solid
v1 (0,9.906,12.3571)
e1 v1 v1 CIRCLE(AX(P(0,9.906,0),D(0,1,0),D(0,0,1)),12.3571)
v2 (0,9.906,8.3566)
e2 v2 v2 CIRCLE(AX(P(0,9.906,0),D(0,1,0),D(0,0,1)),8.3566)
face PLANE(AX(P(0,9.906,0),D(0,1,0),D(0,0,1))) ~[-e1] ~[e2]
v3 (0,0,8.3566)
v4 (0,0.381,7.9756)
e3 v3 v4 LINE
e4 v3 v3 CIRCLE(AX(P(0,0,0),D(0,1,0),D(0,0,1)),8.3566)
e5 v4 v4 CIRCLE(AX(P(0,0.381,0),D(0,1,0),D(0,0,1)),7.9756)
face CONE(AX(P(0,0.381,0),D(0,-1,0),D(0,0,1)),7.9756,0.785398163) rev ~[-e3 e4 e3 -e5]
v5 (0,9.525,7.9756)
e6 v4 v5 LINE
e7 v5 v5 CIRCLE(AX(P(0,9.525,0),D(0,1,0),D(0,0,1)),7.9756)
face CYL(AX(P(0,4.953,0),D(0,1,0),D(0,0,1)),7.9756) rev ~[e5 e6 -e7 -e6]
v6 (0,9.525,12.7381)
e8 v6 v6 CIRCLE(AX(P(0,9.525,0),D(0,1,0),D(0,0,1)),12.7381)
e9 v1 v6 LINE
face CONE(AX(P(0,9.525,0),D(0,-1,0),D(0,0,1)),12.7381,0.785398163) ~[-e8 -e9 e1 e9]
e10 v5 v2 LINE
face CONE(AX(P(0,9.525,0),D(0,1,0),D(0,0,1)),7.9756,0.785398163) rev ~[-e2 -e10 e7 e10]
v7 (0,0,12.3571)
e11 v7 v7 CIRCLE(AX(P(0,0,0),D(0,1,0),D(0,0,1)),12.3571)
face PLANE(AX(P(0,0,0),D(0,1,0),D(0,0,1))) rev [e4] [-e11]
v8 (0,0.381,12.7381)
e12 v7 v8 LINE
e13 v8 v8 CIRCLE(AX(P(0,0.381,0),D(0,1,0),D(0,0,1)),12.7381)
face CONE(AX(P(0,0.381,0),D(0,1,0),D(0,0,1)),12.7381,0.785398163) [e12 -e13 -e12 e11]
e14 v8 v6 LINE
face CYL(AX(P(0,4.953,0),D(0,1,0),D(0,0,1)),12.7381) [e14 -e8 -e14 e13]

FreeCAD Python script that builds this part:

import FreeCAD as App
import Part
import Sketcher
Q = App.Units.Quantity

doc = App.newDocument("Part")
body = doc.addObject("PartDesign::Body", "Body")

# Sketch on YZ plane
sketch1 = body.newObject("Sketcher::SketchObject", "Sketch")
sketch1.AttachmentSupport = (doc.getObject("YZ_Plane"), [""])
sketch1.MapMode = "FlatFace"
sketch1.addGeometry([
    Part.LineSegment(App.Vector(0, 12.7, 0), App.Vector(0, 8, 0)),
    Part.LineSegment(App.Vector(0, 8, 0), App.Vector(9.9, 8, 0)),
    Part.LineSegment(App.Vector(9.9, 8, 0), App.Vector(9.9, 12.7, 0)),
    Part.LineSegment(App.Vector(9.9, 12.7, 0), App.Vector(0, 12.7, 0)),
], False)
sketch1.addConstraint([
    Sketcher.Constraint("Coincident", 0, 2, 1, 1),
    Sketcher.Constraint("Coincident", 1, 2, 2, 1),
    Sketcher.Constraint("Coincident", 2, 2, 3, 1),
    Sketcher.Constraint("Coincident", 3, 2, 0, 1),
    Sketcher.Constraint("Vertical", 0),
    Sketcher.Constraint("Horizontal", 1),
    Sketcher.Constraint("Vertical", 2),
    Sketcher.Constraint("Horizontal", 3),
    Sketcher.Constraint("PointOnObject", 0, 2, -2),
    Sketcher.Constraint("DistanceX", 1, 1, 1, 2, Q("0.39 in")),
    Sketcher.Constraint("DistanceY", 0, 2, 0, 1, Q("0.1875 in")),
    Sketcher.Constraint("DistanceY", -1, 1, 0, 2, Q("0.314 in")),
])
revolution = body.newObject("PartDesign::Revolution", "Revolution")
revolution.Profile = sketch1
revolution.ReferenceAxis = (sketch1, ["H_Axis"])
revolution.Angle = 360
doc.recompute()

chamfer = body.newObject("PartDesign::Chamfer", "Chamfer")
chamfer.Base = (revolution, ["Edge1"])
chamfer.UseAllEdges = True
chamfer.Size = Q("0.015 in")

doc.recompute()
